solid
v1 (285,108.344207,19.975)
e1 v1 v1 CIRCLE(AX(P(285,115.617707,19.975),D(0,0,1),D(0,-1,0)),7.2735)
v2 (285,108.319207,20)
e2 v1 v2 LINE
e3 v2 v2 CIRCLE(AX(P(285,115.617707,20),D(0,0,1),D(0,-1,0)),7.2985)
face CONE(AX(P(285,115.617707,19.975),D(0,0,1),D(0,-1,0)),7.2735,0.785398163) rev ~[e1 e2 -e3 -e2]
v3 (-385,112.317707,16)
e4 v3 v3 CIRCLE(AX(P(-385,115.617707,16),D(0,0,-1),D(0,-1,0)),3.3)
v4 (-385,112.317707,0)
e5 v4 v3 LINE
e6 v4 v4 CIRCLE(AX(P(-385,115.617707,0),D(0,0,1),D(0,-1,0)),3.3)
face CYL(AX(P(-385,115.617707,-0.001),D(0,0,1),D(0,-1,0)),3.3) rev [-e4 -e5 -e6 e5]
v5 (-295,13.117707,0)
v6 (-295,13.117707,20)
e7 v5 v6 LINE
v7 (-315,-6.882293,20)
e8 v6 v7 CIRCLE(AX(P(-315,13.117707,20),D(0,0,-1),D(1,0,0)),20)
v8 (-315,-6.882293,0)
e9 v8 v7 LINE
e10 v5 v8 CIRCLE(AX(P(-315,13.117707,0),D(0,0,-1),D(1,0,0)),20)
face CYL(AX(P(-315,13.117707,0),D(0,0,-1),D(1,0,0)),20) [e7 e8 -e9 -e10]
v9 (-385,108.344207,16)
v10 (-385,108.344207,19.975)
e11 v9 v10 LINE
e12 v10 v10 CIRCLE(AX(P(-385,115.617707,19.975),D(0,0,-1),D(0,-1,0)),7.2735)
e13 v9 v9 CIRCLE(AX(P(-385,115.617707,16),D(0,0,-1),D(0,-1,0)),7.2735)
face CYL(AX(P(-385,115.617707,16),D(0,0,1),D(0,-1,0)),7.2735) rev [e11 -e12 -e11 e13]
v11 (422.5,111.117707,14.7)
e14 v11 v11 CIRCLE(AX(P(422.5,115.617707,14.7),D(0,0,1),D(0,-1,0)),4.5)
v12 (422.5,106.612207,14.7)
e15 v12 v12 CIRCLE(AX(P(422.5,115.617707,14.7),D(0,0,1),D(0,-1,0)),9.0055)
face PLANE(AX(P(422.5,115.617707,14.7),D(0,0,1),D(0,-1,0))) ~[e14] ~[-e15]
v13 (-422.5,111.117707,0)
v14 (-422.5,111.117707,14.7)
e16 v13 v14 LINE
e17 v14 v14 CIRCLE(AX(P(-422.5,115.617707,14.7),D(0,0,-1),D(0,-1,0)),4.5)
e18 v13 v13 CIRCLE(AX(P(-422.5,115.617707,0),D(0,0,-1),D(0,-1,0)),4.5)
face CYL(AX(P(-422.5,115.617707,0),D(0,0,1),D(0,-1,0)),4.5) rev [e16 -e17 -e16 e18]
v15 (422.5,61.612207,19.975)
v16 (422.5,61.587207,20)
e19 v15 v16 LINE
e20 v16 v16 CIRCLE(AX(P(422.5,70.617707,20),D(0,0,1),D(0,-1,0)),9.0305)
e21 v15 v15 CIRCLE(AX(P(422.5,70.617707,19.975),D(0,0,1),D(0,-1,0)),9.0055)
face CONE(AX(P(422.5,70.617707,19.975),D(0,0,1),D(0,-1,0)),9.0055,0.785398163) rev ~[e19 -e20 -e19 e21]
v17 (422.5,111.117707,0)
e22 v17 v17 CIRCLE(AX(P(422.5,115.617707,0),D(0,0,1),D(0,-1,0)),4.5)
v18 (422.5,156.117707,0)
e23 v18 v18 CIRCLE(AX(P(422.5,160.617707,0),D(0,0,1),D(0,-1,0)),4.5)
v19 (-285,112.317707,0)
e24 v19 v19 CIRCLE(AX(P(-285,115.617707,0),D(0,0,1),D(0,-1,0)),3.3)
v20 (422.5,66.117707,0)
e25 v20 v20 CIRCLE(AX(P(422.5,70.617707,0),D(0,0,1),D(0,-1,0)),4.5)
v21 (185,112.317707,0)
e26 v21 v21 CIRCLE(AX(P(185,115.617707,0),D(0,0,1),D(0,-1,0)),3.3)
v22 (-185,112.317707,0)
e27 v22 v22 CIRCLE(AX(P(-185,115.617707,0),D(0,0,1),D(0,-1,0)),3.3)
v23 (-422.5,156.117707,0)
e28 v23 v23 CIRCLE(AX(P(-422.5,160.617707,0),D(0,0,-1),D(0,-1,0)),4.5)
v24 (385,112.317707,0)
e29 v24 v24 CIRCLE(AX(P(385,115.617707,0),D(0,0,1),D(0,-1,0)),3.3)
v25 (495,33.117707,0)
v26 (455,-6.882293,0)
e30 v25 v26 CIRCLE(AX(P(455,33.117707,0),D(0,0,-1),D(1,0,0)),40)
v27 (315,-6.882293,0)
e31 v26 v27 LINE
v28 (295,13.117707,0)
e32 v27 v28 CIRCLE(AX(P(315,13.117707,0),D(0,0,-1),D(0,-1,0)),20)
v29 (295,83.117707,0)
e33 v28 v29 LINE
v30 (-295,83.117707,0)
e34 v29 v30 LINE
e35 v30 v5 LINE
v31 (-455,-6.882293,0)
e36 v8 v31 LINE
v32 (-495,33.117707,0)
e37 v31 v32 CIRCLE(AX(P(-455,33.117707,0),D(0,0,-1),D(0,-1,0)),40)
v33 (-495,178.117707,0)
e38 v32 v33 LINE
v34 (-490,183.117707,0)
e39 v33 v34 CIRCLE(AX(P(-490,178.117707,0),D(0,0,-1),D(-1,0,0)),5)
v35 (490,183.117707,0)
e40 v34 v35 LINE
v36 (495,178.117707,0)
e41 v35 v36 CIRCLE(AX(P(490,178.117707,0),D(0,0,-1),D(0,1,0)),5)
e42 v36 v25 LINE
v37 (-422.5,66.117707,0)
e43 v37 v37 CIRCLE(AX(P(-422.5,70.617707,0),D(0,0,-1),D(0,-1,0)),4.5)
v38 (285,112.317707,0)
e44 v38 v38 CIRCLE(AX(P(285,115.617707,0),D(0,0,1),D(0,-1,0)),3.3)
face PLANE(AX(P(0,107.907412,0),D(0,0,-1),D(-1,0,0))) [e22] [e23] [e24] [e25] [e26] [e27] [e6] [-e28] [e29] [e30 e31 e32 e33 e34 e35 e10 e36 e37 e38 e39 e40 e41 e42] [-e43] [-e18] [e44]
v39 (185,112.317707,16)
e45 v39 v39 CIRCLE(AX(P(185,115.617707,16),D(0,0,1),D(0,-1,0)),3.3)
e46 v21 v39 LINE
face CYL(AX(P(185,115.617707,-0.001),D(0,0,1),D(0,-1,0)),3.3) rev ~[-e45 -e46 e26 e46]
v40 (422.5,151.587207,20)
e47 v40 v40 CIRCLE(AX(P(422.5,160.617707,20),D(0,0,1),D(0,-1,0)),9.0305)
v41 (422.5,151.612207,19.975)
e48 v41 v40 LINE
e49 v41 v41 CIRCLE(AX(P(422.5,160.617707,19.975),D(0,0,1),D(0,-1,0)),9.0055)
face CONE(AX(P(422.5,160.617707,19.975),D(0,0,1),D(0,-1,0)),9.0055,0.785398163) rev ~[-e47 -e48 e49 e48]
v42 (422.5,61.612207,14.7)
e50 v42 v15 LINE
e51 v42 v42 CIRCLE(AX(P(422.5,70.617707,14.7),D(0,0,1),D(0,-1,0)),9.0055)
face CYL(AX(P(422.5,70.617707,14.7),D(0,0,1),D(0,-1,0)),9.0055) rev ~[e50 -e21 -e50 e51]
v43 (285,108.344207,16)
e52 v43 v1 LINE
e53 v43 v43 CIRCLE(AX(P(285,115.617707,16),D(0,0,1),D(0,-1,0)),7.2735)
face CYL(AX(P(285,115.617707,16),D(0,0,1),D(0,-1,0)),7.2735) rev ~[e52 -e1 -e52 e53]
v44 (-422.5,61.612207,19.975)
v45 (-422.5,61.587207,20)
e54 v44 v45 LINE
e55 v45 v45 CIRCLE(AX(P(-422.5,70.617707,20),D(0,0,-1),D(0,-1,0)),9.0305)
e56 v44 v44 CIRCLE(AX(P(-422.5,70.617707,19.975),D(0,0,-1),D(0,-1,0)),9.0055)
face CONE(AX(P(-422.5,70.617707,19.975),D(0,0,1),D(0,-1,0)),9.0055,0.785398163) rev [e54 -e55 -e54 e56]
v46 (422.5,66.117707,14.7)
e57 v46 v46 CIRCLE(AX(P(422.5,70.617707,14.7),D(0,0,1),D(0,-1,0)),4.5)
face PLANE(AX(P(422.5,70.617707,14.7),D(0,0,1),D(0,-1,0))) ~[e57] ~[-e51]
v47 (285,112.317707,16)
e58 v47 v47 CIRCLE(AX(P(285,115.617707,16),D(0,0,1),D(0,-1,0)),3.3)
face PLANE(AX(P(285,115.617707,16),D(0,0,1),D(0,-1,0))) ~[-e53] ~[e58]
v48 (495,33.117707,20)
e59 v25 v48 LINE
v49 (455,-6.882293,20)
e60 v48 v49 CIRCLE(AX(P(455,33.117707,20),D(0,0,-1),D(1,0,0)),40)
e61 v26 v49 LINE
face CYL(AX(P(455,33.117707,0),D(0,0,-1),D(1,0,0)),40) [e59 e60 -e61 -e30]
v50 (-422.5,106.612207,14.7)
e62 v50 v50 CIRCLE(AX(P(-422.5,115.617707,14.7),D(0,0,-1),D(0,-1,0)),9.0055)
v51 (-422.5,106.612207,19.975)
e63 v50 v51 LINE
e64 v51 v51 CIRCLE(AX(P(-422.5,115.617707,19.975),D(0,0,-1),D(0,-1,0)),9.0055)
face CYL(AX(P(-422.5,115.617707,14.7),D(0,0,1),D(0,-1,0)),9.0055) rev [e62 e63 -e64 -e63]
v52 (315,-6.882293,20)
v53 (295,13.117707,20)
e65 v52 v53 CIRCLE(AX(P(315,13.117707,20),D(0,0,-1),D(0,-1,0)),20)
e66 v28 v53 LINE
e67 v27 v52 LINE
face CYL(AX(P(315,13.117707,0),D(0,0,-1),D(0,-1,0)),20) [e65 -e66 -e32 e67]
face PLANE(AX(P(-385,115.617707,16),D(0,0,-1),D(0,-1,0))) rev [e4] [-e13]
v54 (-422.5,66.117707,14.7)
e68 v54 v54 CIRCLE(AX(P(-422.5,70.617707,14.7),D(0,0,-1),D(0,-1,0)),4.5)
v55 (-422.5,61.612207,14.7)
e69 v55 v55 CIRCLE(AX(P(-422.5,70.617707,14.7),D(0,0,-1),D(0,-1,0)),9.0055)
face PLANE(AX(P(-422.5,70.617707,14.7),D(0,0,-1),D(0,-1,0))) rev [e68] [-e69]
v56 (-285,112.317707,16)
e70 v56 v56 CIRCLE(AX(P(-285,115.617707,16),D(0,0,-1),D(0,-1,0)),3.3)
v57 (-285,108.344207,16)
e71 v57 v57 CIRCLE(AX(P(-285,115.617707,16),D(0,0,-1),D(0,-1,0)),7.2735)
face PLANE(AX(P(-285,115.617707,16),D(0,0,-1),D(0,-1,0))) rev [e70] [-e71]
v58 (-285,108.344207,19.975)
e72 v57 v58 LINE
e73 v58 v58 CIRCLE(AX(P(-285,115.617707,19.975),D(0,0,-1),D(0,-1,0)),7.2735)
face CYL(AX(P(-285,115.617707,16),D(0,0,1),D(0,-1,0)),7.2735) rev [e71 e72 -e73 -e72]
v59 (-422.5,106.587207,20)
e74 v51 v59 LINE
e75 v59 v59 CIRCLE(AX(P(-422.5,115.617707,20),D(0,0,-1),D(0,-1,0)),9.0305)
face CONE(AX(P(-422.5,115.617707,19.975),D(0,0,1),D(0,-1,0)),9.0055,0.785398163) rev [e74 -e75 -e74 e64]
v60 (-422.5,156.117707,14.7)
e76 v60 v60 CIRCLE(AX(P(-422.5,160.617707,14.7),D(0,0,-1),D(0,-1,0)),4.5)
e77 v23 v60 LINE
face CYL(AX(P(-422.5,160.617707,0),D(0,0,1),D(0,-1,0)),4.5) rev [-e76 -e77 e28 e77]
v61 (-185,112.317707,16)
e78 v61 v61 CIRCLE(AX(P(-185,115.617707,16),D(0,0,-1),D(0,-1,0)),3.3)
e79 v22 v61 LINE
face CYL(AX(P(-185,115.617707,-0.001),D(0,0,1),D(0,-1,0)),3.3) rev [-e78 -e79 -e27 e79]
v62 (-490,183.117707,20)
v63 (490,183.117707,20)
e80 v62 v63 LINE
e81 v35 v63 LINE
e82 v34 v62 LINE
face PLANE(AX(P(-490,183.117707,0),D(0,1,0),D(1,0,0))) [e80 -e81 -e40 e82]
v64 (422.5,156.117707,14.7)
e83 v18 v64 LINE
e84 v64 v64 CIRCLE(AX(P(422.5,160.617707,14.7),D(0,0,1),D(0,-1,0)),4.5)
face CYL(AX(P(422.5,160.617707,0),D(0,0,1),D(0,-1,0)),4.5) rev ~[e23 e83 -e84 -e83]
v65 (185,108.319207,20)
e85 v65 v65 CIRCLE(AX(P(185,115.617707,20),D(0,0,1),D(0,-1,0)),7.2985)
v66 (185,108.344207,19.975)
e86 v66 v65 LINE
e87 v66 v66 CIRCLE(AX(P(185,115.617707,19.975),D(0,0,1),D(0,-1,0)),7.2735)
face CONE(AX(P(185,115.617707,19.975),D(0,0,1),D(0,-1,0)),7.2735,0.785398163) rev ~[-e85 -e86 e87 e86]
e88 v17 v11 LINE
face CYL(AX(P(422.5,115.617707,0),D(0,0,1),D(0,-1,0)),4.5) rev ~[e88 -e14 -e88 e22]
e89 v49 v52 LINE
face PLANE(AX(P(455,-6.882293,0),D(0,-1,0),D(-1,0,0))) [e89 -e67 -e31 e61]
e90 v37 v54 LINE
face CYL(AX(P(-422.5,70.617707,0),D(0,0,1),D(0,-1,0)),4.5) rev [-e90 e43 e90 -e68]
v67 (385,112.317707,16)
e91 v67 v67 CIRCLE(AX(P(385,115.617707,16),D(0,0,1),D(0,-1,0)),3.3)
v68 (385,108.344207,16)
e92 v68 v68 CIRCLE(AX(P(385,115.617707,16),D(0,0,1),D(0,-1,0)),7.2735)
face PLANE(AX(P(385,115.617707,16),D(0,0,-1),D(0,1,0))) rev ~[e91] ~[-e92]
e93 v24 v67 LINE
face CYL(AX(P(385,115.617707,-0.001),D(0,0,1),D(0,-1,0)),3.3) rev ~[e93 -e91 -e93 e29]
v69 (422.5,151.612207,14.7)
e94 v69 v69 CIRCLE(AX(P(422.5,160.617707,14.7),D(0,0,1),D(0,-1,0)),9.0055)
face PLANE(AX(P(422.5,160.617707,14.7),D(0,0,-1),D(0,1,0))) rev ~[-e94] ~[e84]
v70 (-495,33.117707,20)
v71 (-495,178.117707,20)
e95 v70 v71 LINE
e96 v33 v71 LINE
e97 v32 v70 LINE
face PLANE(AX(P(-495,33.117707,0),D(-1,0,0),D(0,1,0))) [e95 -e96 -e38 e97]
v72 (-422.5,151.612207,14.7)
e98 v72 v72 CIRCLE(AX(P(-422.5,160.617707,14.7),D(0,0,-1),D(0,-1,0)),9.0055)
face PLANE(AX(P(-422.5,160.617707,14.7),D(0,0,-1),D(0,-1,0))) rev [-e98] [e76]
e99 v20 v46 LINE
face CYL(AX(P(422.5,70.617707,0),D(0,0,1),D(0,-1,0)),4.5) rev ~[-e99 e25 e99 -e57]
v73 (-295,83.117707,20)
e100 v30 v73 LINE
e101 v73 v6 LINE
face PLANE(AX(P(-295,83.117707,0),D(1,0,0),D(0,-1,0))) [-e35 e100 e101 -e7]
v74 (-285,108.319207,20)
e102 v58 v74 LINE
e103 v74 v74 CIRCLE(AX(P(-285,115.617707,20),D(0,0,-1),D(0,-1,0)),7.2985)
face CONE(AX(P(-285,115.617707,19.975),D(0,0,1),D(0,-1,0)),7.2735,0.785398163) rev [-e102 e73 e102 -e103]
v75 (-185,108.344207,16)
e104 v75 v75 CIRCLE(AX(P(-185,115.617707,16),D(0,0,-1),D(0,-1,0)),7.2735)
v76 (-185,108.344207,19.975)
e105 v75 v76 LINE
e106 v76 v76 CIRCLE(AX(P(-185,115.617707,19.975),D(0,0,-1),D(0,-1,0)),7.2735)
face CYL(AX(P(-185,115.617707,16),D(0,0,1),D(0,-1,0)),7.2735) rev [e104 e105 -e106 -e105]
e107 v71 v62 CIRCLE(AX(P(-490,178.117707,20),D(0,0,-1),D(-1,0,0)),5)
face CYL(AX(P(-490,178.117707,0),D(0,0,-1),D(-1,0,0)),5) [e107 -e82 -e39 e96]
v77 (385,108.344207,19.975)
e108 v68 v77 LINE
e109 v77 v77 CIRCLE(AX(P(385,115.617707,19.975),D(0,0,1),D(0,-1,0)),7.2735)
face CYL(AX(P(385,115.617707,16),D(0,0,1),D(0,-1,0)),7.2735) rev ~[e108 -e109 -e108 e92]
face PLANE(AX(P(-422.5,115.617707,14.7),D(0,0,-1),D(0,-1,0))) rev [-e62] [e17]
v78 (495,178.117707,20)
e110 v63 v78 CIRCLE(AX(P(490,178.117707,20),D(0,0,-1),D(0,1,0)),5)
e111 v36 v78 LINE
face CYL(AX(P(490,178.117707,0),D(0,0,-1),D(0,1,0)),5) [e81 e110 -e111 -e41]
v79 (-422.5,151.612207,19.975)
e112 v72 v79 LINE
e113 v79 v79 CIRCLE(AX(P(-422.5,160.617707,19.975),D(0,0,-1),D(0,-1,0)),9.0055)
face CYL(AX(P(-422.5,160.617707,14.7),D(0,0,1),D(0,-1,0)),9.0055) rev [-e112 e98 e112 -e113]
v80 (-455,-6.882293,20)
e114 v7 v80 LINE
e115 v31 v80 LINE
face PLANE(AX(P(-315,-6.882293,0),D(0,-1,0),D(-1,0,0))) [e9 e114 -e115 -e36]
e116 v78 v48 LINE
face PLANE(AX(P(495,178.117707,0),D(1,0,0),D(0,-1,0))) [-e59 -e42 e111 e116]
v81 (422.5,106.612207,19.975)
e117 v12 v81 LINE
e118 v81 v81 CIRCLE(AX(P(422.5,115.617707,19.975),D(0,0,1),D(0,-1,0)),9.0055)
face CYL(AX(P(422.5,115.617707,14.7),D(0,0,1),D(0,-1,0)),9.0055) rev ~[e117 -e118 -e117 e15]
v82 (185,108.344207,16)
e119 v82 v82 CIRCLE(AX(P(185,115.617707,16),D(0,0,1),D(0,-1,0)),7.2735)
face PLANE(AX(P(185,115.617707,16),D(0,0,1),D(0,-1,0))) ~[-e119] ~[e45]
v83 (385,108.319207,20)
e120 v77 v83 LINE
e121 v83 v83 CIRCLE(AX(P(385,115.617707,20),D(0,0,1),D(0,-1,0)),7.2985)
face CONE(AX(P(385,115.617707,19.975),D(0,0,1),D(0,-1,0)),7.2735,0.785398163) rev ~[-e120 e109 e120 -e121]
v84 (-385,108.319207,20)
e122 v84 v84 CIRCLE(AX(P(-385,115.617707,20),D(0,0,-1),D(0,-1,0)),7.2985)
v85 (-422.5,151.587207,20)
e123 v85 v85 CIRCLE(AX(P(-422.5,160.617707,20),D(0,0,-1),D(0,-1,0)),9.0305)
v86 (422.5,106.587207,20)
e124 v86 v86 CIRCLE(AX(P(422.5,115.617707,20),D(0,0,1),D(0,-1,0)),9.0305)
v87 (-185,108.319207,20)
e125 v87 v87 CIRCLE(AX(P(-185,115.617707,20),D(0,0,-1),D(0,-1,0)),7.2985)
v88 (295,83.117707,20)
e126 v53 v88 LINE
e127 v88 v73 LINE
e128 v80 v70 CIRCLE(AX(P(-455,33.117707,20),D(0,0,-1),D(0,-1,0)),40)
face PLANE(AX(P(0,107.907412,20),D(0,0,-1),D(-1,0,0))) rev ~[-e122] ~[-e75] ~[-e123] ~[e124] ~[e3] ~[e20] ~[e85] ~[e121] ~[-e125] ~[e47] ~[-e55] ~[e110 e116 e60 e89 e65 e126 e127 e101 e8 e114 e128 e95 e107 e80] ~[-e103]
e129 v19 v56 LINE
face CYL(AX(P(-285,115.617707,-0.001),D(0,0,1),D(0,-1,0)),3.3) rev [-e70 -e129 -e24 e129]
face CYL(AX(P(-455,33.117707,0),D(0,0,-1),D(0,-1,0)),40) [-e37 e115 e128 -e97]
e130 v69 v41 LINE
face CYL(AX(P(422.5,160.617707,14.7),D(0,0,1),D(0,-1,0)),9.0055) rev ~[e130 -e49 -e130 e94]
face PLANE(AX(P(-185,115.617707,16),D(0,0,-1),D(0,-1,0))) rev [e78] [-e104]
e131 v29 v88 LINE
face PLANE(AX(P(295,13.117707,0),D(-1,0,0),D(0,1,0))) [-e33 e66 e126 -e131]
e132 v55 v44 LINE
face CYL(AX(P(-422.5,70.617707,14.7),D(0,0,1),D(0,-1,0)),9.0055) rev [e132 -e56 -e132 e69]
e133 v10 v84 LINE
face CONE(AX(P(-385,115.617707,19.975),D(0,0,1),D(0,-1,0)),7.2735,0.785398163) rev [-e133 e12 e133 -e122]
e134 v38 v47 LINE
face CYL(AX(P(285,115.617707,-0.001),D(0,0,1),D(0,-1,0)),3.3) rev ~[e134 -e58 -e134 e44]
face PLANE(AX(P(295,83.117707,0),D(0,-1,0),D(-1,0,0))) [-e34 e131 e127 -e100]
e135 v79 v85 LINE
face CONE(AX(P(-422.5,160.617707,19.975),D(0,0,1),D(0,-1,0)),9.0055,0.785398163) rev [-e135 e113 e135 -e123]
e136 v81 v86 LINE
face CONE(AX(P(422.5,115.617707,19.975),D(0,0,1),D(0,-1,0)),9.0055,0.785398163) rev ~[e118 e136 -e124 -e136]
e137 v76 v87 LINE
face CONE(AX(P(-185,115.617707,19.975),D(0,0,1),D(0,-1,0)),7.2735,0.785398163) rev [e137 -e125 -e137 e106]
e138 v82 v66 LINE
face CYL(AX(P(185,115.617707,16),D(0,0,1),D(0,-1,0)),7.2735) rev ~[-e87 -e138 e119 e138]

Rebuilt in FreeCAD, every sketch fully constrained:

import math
import FreeCAD as App
import Part
import Sketcher
Q = App.Units.Quantity

doc = App.newDocument("Part")
body = doc.addObject("PartDesign::Body", "Body")

sketch1 = body.newObject("Sketcher::SketchObject", "Sketch")
sketch1.AttachmentSupport = (doc.getObject("XY_Plane"), [""])
sketch1.MapMode = "FlatFace"
sketch1.addGeometry(Part.LineSegment(App.Vector(-495, 178.117707, 0), App.Vector(-495, 33.117707, 0)), False)
sketch1.addGeometry(Part.ArcOfCircle(Part.Circle(App.Vector(-455, 33.117707, 0), App.Vector(0, 0, 1), 40), math.radians(-180), math.radians(-90)), False)
sketch1.addGeometry(Part.LineSegment(App.Vector(-455, -6.882293, 0), App.Vector(-315, -6.882293, 0)), False)
sketch1.addGeometry(Part.ArcOfCircle(Part.Circle(App.Vector(-315, 13.117707, 0), App.Vector(0, 0, 1), 20), math.radians(-90), math.radians(0)), False)
sketch1.addGeometry(Part.LineSegment(App.Vector(-295, 13.117707, 0), App.Vector(-295, 83.117707, 0)), False)
sketch1.addGeometry(Part.LineSegment(App.Vector(-295, 83.117707, 0), App.Vector(295, 83.117707, 0)), False)
sketch1.addGeometry(Part.LineSegment(App.Vector(295, 83.117707, 0), App.Vector(295, 13.117707, 0)), False)
sketch1.addGeometry(Part.ArcOfCircle(Part.Circle(App.Vector(315, 13.117707, 0), App.Vector(0, 0, 1), 20), math.radians(180), math.radians(270)), False)
sketch1.addGeometry(Part.LineSegment(App.Vector(315, -6.882293, 0), App.Vector(455, -6.882293, 0)), False)
sketch1.addGeometry(Part.ArcOfCircle(Part.Circle(App.Vector(455, 33.117707, 0), App.Vector(0, 0, 1), 40), math.radians(-90), math.radians(0)), False)
sketch1.addGeometry(Part.LineSegment(App.Vector(495, 33.117707, 0), App.Vector(495, 178.117707, 0)), False)
sketch1.addGeometry(Part.ArcOfCircle(Part.Circle(App.Vector(490, 178.117707, 0), App.Vector(0, 0, 1), 5), math.radians(0), math.radians(90)), False)
sketch1.addGeometry(Part.LineSegment(App.Vector(490, 183.117707, 0), App.Vector(-490, 183.117707, 0)), False)
sketch1.addGeometry(Part.ArcOfCircle(Part.Circle(App.Vector(-490, 178.117707, 0), App.Vector(0, 0, 1), 5), math.radians(90), math.radians(180)), False)
sketch1.addConstraint(Sketcher.Constraint("Tangent", 0, 2, 1, 1))
sketch1.addConstraint(Sketcher.Constraint("Tangent", 1, 2, 2, 1))
sketch1.addConstraint(Sketcher.Constraint("Tangent", 2, 2, 3, 1))
sketch1.addConstraint(Sketcher.Constraint("Tangent", 3, 2, 4, 1))
sketch1.addConstraint(Sketcher.Constraint("Coincident", 4, 2, 5, 1))
sketch1.addConstraint(Sketcher.Constraint("Coincident", 5, 2, 6, 1))
sketch1.addConstraint(Sketcher.Constraint("Tangent", 6, 2, 7, 1))
sketch1.addConstraint(Sketcher.Constraint("Tangent", 7, 2, 8, 1))
sketch1.addConstraint(Sketcher.Constraint("Tangent", 8, 2, 9, 1))
sketch1.addConstraint(Sketcher.Constraint("Tangent", 9, 2, 10, 1))
sketch1.addConstraint(Sketcher.Constraint("Tangent", 10, 2, 11, 1))
sketch1.addConstraint(Sketcher.Constraint("Tangent", 11, 2, 12, 1))
sketch1.addConstraint(Sketcher.Constraint("Tangent", 12, 2, 13, 1))
sketch1.addConstraint(Sketcher.Constraint("Tangent", 13, 2, 0, 1))
sketch1.addConstraint(Sketcher.Constraint("Vertical", 0))
sketch1.addConstraint(Sketcher.Constraint("Horizontal", 2))
sketch1.addConstraint(Sketcher.Constraint("Vertical", 4))
sketch1.addConstraint(Sketcher.Constraint("Horizontal", 5))
sketch1.addConstraint(Sketcher.Constraint("Vertical", 6))
sketch1.addConstraint(Sketcher.Constraint("Horizontal", 8))
sketch1.addConstraint(Sketcher.Constraint("Vertical", 10))
sketch1.addConstraint(Sketcher.Constraint("Horizontal", 12))
sketch1.addConstraint(Sketcher.Constraint("Equal", 3, 7))
sketch1.addConstraint(Sketcher.Constraint("Equal", 1, 9))
sketch1.addConstraint(Sketcher.Constraint("Equal", 11, 13))
sketch1.addConstraint(Sketcher.Constraint("Symmetric", 3, 3, 7, 3, -2))
sketch1.addConstraint(Sketcher.Constraint("Equal", 2, 8))
sketch1.addConstraint(Sketcher.Constraint("Radius", 1, Q("40 mm")))
sketch1.addConstraint(Sketcher.Constraint("Radius", 3, Q("20 mm")))
sketch1.addConstraint(Sketcher.Constraint("Radius", 11, Q("5 mm")))
sketch1.addConstraint(Sketcher.Constraint("DistanceX", 2, 1, 2, 2, Q("140 mm")))
sketch1.addConstraint(Sketcher.Constraint("DistanceX", 5, 1, 5, 2, Q("590 mm")))
sketch1.addConstraint(Sketcher.Constraint("DistanceY", 0, 2, 0, 1, Q("145 mm")))
sketch1.addConstraint(Sketcher.Constraint("DistanceY", 4, 1, 4, 2, Q("70 mm")))
sketch1.addConstraint(Sketcher.Constraint("DistanceY", -1, 1, 1, 3, Q("33.117707 mm")))
pad1 = body.newObject("PartDesign::Pad", "Pad")
pad1.Profile = sketch1
pad1.Length = 20

sketch2 = body.newObject("Sketcher::SketchObject", "Sketch001")
sketch2.AttachmentSupport = (doc.getObject("YZ_Plane"), [""])
sketch2.MapMode = "FlatFace"
sketch2.AttachmentOffset = App.Placement(App.Vector(0, 0, -422.5), App.Rotation())
sketch2.addGeometry(Part.LineSegment(App.Vector(160.617707, 0, 0), App.Vector(160.617707, 20, 0)), False)
sketch2.addGeometry(Part.LineSegment(App.Vector(160.617707, 20, 0), App.Vector(151.587207, 20, 0)), False)
sketch2.addGeometry(Part.LineSegment(App.Vector(151.587207, 20, 0), App.Vector(151.612207, 19.975, 0)), False)
sketch2.addGeometry(Part.LineSegment(App.Vector(151.612207, 19.975, 0), App.Vector(151.612207, 14.7, 0)), False)
sketch2.addGeometry(Part.LineSegment(App.Vector(151.612207, 14.7, 0), App.Vector(156.117707, 14.7, 0)), False)
sketch2.addGeometry(Part.LineSegment(App.Vector(156.117707, 14.7, 0), App.Vector(156.117707, 0, 0)), False)
sketch2.addGeometry(Part.LineSegment(App.Vector(156.117707, 0, 0), App.Vector(160.617707, 0, 0)), False)
sketch2.addGeometry(Part.LineSegment(App.Vector(160.617707, 20, 0), App.Vector(160.617707, 0, 0)), True)
sketch2.addConstraint(Sketcher.Constraint("Coincident", 0, 2, 1, 1))
sketch2.addConstraint(Sketcher.Constraint("Coincident", 1, 2, 2, 1))
sketch2.addConstraint(Sketcher.Constraint("Coincident", 2, 2, 3, 1))
sketch2.addConstraint(Sketcher.Constraint("Coincident", 3, 2, 4, 1))
sketch2.addConstraint(Sketcher.Constraint("Coincident", 4, 2, 5, 1))
sketch2.addConstraint(Sketcher.Constraint("Coincident", 5, 2, 6, 1))
sketch2.addConstraint(Sketcher.Constraint("Coincident", 6, 2, 0, 1))
sketch2.addConstraint(Sketcher.Constraint("Vertical", 0))
sketch2.addConstraint(Sketcher.Constraint("Horizontal", 1))
sketch2.addConstraint(Sketcher.Constraint("Vertical", 3))
sketch2.addConstraint(Sketcher.Constraint("Horizontal", 4))
sketch2.addConstraint(Sketcher.Constraint("Vertical", 5))
sketch2.addConstraint(Sketcher.Constraint("Horizontal", 6))
sketch2.addConstraint(Sketcher.Constraint("Vertical", 7))
sketch2.addConstraint(Sketcher.Constraint("Coincident", 7, 1, 0, 2))
sketch2.addConstraint(Sketcher.Constraint("PointOnObject", 5, 2, -1))
sketch2.addConstraint(Sketcher.Constraint("PointOnObject", 7, 2, -1))
sketch2.addConstraint(Sketcher.Constraint("DistanceY", 0, 1, 0, 2, Q("20 mm")))
sketch2.addConstraint(Sketcher.Constraint("Angle", 2, Q("-45 deg")))
sketch2.addConstraint(Sketcher.Constraint("DistanceX", 6, 1, 6, 2, Q("4.5 mm")))
sketch2.addConstraint(Sketcher.Constraint("DistanceY", 5, 2, 5, 1, Q("14.7 mm")))
sketch2.addConstraint(Sketcher.Constraint("DistanceY", 3, 2, 3, 1, Q("5.275 mm")))
sketch2.addConstraint(Sketcher.Constraint("DistanceX", 1, 2, 1, 1, Q("9.0305 mm")))
sketch2.addConstraint(Sketcher.Constraint("DistanceX", -1, 1, 0, 2, Q("160.617707 mm")))
groove = body.newObject("PartDesign::Groove", "Groove")
groove.Profile = sketch2
groove.ReferenceAxis = (sketch2, ["Axis0"])
groove.Angle = 360
doc.recompute()

linearpattern = body.newObject("PartDesign::LinearPattern", "LinearPattern")
linearpattern.Originals = [groove]
linearpattern.Direction = (doc.getObject("Y_Axis"), [""])
linearpattern.Mode = "offset"
linearpattern.Offset = 45
linearpattern.Occurrences = 2
linearpattern.Reversed = True
body.Tip = linearpattern
doc.recompute()

datumline = body.newObject("PartDesign::Line", "DatumLine")
datumline.Placement = App.Placement(App.Vector(0, 0, 0), App.Rotation(App.Vector(0, 0, 1), App.Vector(-0.70340233, 0.710791926, 0)))
linearpattern2 = body.newObject("PartDesign::LinearPattern", "LinearPattern001")
linearpattern2.Originals = [groove]
linearpattern2.Direction = (datumline, [""])
linearpattern2.Mode = "offset"
linearpattern2.Offset = 1307.399809
linearpattern2.Occurrences = 2
body.Tip = linearpattern2
doc.recompute()

linearpattern3 = body.newObject("PartDesign::LinearPattern", "LinearPattern002")
linearpattern3.Originals = [groove]
linearpattern3.Direction = (doc.getObject("Y_Axis"), [""])
linearpattern3.Mode = "offset"
linearpattern3.Offset = 90
linearpattern3.Occurrences = 2
linearpattern3.Reversed = True
body.Tip = linearpattern3
doc.recompute()

mirrored = body.newObject("PartDesign::Mirrored", "Mirrored")
mirrored.Originals = [groove]
mirrored.MirrorPlane = (doc.getObject("YZ_Plane"), [""])
body.Tip = mirrored

sketch3 = body.newObject("Sketcher::SketchObject", "Sketch002")
sketch3.AttachmentSupport = (doc.getObject("YZ_Plane"), [""])
sketch3.MapMode = "FlatFace"
sketch3.AttachmentOffset = App.Placement(App.Vector(0, 0, 422.5), App.Rotation())
sketch3.addGeometry(Part.LineSegment(App.Vector(115.617707, 20, 0), App.Vector(115.617707, 0, 0)), False)
sketch3.addGeometry(Part.LineSegment(App.Vector(115.617707, 0, 0), App.Vector(111.117707, 0, 0)), False)
sketch3.addGeometry(Part.LineSegment(App.Vector(111.117707, 0, 0), App.Vector(111.117707, 14.7, 0)), False)
sketch3.addGeometry(Part.LineSegment(App.Vector(111.117707, 14.7, 0), App.Vector(106.612207, 14.7, 0)), False)
sketch3.addGeometry(Part.LineSegment(App.Vector(106.612207, 14.7, 0), App.Vector(106.612207, 19.975, 0)), False)
sketch3.addGeometry(Part.LineSegment(App.Vector(106.612207, 19.975, 0), App.Vector(106.587207, 20, 0)), False)
sketch3.addGeometry(Part.LineSegment(App.Vector(106.587207, 20, 0), App.Vector(115.617707, 20, 0)), False)
sketch3.addGeometry(Part.LineSegment(App.Vector(115.617707, 0, 0), App.Vector(115.617707, 20, 0)), True)
sketch3.addConstraint(Sketcher.Constraint("Coincident", 0, 2, 1, 1))
sketch3.addConstraint(Sketcher.Constraint("Coincident", 1, 2, 2, 1))
sketch3.addConstraint(Sketcher.Constraint("Coincident", 2, 2, 3, 1))
sketch3.addConstraint(Sketcher.Constraint("Coincident", 3, 2, 4, 1))
sketch3.addConstraint(Sketcher.Constraint("Coincident", 4, 2, 5, 1))
sketch3.addConstraint(Sketcher.Constraint("Coincident", 5, 2, 6, 1))
sketch3.addConstraint(Sketcher.Constraint("Coincident", 6, 2, 0, 1))
sketch3.addConstraint(Sketcher.Constraint("Vertical", 0))
sketch3.addConstraint(Sketcher.Constraint("Horizontal", 1))
sketch3.addConstraint(Sketcher.Constraint("Vertical", 2))
sketch3.addConstraint(Sketcher.Constraint("Horizontal", 3))
sketch3.addConstraint(Sketcher.Constraint("Vertical", 4))
sketch3.addConstraint(Sketcher.Constraint("Horizontal", 6))
sketch3.addConstraint(Sketcher.Constraint("Vertical", 7))
sketch3.addConstraint(Sketcher.Constraint("Coincident", 7, 1, 0, 2))
sketch3.addConstraint(Sketcher.Constraint("PointOnObject", 0, 2, -1))
sketch3.addConstraint(Sketcher.Constraint("Horizontal", 5, 2, 7, 2))
sketch3.addConstraint(Sketcher.Constraint("DistanceY", 0, 2, 0, 1, Q("20 mm")))
sketch3.addConstraint(Sketcher.Constraint("Angle", 5, Q("135 deg")))
sketch3.addConstraint(Sketcher.Constraint("DistanceX", 1, 2, 1, 1, Q("4.5 mm")))
sketch3.addConstraint(Sketcher.Constraint("DistanceY", 2, 1, 2, 2, Q("14.7 mm")))
sketch3.addConstraint(Sketcher.Constraint("DistanceY", 4, 1, 4, 2, Q("5.275 mm")))
sketch3.addConstraint(Sketcher.Constraint("DistanceX", 3, 2, 3, 1, Q("4.5055 mm")))
sketch3.addConstraint(Sketcher.Constraint("DistanceX", -1, 1, 0, 2, Q("115.617707 mm")))
groove2 = body.newObject("PartDesign::Groove", "Groove001")
groove2.Profile = sketch3
groove2.ReferenceAxis = (sketch3, ["Axis0"])
groove2.Angle = 360

sketch4 = body.newObject("Sketcher::SketchObject", "Sketch003")
sketch4.AttachmentSupport = (doc.getObject("YZ_Plane"), [""])
sketch4.MapMode = "FlatFace"
sketch4.AttachmentOffset = App.Placement(App.Vector(0, 0, 1342.128073), App.Rotation())
sketch4.addGeometry(Part.LineSegment(App.Vector(1089.906935, 20, 0), App.Vector(1089.906935, 0, 0)), False)
sketch4.addGeometry(Part.LineSegment(App.Vector(1089.906935, 0, 0), App.Vector(1085.406935, 0, 0)), False)
sketch4.addGeometry(Part.LineSegment(App.Vector(1085.406935, 0, 0), App.Vector(1085.406935, 14.7, 0)), False)
sketch4.addGeometry(Part.LineSegment(App.Vector(1085.406935, 14.7, 0), App.Vector(1080.901435, 14.7, 0)), False)
sketch4.addGeometry(Part.LineSegment(App.Vector(1080.901435, 14.7, 0), App.Vector(1080.901435, 19.975, 0)), False)
sketch4.addGeometry(Part.LineSegment(App.Vector(1080.901435, 19.975, 0), App.Vector(1080.876435, 20, 0)), False)
sketch4.addGeometry(Part.LineSegment(App.Vector(1080.876435, 20, 0), App.Vector(1089.906935, 20, 0)), False)
sketch4.addGeometry(Part.LineSegment(App.Vector(1089.906935, 0, 0), App.Vector(1089.906935, 20, 0)), True)
sketch4.addConstraint(Sketcher.Constraint("Coincident", 0, 2, 1, 1))
sketch4.addConstraint(Sketcher.Constraint("Coincident", 1, 2, 2, 1))
sketch4.addConstraint(Sketcher.Constraint("Coincident", 2, 2, 3, 1))
sketch4.addConstraint(Sketcher.Constraint("Coincident", 3, 2, 4, 1))
sketch4.addConstraint(Sketcher.Constraint("Coincident", 4, 2, 5, 1))
sketch4.addConstraint(Sketcher.Constraint("Coincident", 5, 2, 6, 1))
sketch4.addConstraint(Sketcher.Constraint("Coincident", 6, 2, 0, 1))
sketch4.addConstraint(Sketcher.Constraint("Vertical", 0))
sketch4.addConstraint(Sketcher.Constraint("Horizontal", 1))
sketch4.addConstraint(Sketcher.Constraint("Vertical", 2))
sketch4.addConstraint(Sketcher.Constraint("Horizontal", 3))
sketch4.addConstraint(Sketcher.Constraint("Vertical", 4))
sketch4.addConstraint(Sketcher.Constraint("Horizontal", 6))
sketch4.addConstraint(Sketcher.Constraint("Vertical", 7))
sketch4.addConstraint(Sketcher.Constraint("Coincident", 7, 1, 0, 2))
sketch4.addConstraint(Sketcher.Constraint("PointOnObject", 0, 2, -1))
sketch4.addConstraint(Sketcher.Constraint("Horizontal", 5, 2, 7, 2))
sketch4.addConstraint(Sketcher.Constraint("DistanceY", 0, 2, 0, 1, Q("20 mm")))
sketch4.addConstraint(Sketcher.Constraint("Angle", 5, Q("135 deg")))
sketch4.addConstraint(Sketcher.Constraint("DistanceX", 1, 2, 1, 1, Q("4.5 mm")))
sketch4.addConstraint(Sketcher.Constraint("DistanceY", 2, 1, 2, 2, Q("14.7 mm")))
sketch4.addConstraint(Sketcher.Constraint("DistanceY", 4, 1, 4, 2, Q("5.275 mm")))
sketch4.addConstraint(Sketcher.Constraint("DistanceX", 3, 2, 3, 1, Q("4.5055 mm")))
sketch4.addConstraint(Sketcher.Constraint("DistanceX", -1, 1, 0, 2, Q("1089.906935 mm")))
groove3 = body.newObject("PartDesign::Groove", "Groove002")
groove3.Profile = sketch4
groove3.ReferenceAxis = (sketch4, ["Axis0"])
groove3.Angle = 360

sketch5 = body.newObject("Sketcher::SketchObject", "Sketch004")
sketch5.AttachmentSupport = (doc.getObject("YZ_Plane"), [""])
sketch5.MapMode = "FlatFace"
sketch5.AttachmentOffset = App.Placement(App.Vector(0, 0, 422.5), App.Rotation())
sketch5.addGeometry(Part.LineSegment(App.Vector(70.617707, 20, 0), App.Vector(70.617707, 0, 0)), False)
sketch5.addGeometry(Part.LineSegment(App.Vector(70.617707, 0, 0), App.Vector(66.117707, 0, 0)), False)
sketch5.addGeometry(Part.LineSegment(App.Vector(66.117707, 0, 0), App.Vector(66.117707, 14.7, 0)), False)
sketch5.addGeometry(Part.LineSegment(App.Vector(66.117707, 14.7, 0), App.Vector(61.612207, 14.7, 0)), False)
sketch5.addGeometry(Part.LineSegment(App.Vector(61.612207, 14.7, 0), App.Vector(61.612207, 19.975, 0)), False)
sketch5.addGeometry(Part.LineSegment(App.Vector(61.612207, 19.975, 0), App.Vector(61.587207, 20, 0)), False)
sketch5.addGeometry(Part.LineSegment(App.Vector(61.587207, 20, 0), App.Vector(70.617707, 20, 0)), False)
sketch5.addGeometry(Part.LineSegment(App.Vector(70.617707, 0, 0), App.Vector(70.617707, 20, 0)), True)
sketch5.addConstraint(Sketcher.Constraint("Coincident", 0, 2, 1, 1))
sketch5.addConstraint(Sketcher.Constraint("Coincident", 1, 2, 2, 1))
sketch5.addConstraint(Sketcher.Constraint("Coincident", 2, 2, 3, 1))
sketch5.addConstraint(Sketcher.Constraint("Coincident", 3, 2, 4, 1))
sketch5.addConstraint(Sketcher.Constraint("Coincident", 4, 2, 5, 1))
sketch5.addConstraint(Sketcher.Constraint("Coincident", 5, 2, 6, 1))
sketch5.addConstraint(Sketcher.Constraint("Coincident", 6, 2, 0, 1))
sketch5.addConstraint(Sketcher.Constraint("Vertical", 0))
sketch5.addConstraint(Sketcher.Constraint("Horizontal", 1))
sketch5.addConstraint(Sketcher.Constraint("Vertical", 2))
sketch5.addConstraint(Sketcher.Constraint("Horizontal", 3))
sketch5.addConstraint(Sketcher.Constraint("Vertical", 4))
sketch5.addConstraint(Sketcher.Constraint("Horizontal", 6))
sketch5.addConstraint(Sketcher.Constraint("Vertical", 7))
sketch5.addConstraint(Sketcher.Constraint("Coincident", 7, 1, 0, 2))
sketch5.addConstraint(Sketcher.Constraint("PointOnObject", 0, 2, -1))
sketch5.addConstraint(Sketcher.Constraint("Horizontal", 5, 2, 7, 2))
sketch5.addConstraint(Sketcher.Constraint("DistanceY", 0, 2, 0, 1, Q("20 mm")))
sketch5.addConstraint(Sketcher.Constraint("Angle", 5, Q("135 deg")))
sketch5.addConstraint(Sketcher.Constraint("DistanceX", 1, 2, 1, 1, Q("4.5 mm")))
sketch5.addConstraint(Sketcher.Constraint("DistanceY", 2, 1, 2, 2, Q("14.7 mm")))
sketch5.addConstraint(Sketcher.Constraint("DistanceY", 4, 1, 4, 2, Q("5.275 mm")))
sketch5.addConstraint(Sketcher.Constraint("DistanceX", 3, 2, 3, 1, Q("4.5055 mm")))
sketch5.addConstraint(Sketcher.Constraint("DistanceX", -1, 1, 0, 2, Q("70.617707 mm")))
groove4 = body.newObject("PartDesign::Groove", "Groove003")
groove4.Profile = sketch5
groove4.ReferenceAxis = (sketch5, ["Axis0"])
groove4.Angle = 360

sketch6 = body.newObject("Sketcher::SketchObject", "Sketch005")
sketch6.AttachmentSupport = (doc.getObject("YZ_Plane"), [""])
sketch6.MapMode = "FlatFace"
sketch6.AttachmentOffset = App.Placement(App.Vector(0, 0, -385), App.Rotation())
sketch6.addGeometry(Part.LineSegment(App.Vector(115.617707, -0.001, 0), App.Vector(115.617707, 20, 0)), False)
sketch6.addGeometry(Part.LineSegment(App.Vector(115.617707, 20, 0), App.Vector(108.319207, 20, 0)), False)
sketch6.addGeometry(Part.LineSegment(App.Vector(108.319207, 20, 0), App.Vector(108.344207, 19.975, 0)), False)
sketch6.addGeometry(Part.LineSegment(App.Vector(108.344207, 19.975, 0), App.Vector(108.344207, 16, 0)), False)
sketch6.addGeometry(Part.LineSegment(App.Vector(108.344207, 16, 0), App.Vector(112.317707, 16, 0)), False)
sketch6.addGeometry(Part.LineSegment(App.Vector(112.317707, 16, 0), App.Vector(112.317707, -0.001, 0)), False)
sketch6.addGeometry(Part.LineSegment(App.Vector(112.317707, -0.001, 0), App.Vector(115.617707, -0.001, 0)), False)
sketch6.addGeometry(Part.LineSegment(App.Vector(115.617707, 20, 0), App.Vector(115.617707, -0.001, 0)), True)
sketch6.addConstraint(Sketcher.Constraint("Coincident", 0, 2, 1, 1))
sketch6.addConstraint(Sketcher.Constraint("Coincident", 1, 2, 2, 1))
sketch6.addConstraint(Sketcher.Constraint("Coincident", 2, 2, 3, 1))
sketch6.addConstraint(Sketcher.Constraint("Coincident", 3, 2, 4, 1))
sketch6.addConstraint(Sketcher.Constraint("Coincident", 4, 2, 5, 1))
sketch6.addConstraint(Sketcher.Constraint("Coincident", 5, 2, 6, 1))
sketch6.addConstraint(Sketcher.Constraint("Coincident", 6, 2, 0, 1))
sketch6.addConstraint(Sketcher.Constraint("Vertical", 0))
sketch6.addConstraint(Sketcher.Constraint("Horizontal", 1))
sketch6.addConstraint(Sketcher.Constraint("Vertical", 3))
sketch6.addConstraint(Sketcher.Constraint("Horizontal", 4))
sketch6.addConstraint(Sketcher.Constraint("Vertical", 5))
sketch6.addConstraint(Sketcher.Constraint("Horizontal", 6))
sketch6.addConstraint(Sketcher.Constraint("Vertical", 7))
sketch6.addConstraint(Sketcher.Constraint("Coincident", 7, 1, 0, 2))
sketch6.addConstraint(Sketcher.Constraint("Horizontal", 5, 2, 7, 2))
sketch6.addConstraint(Sketcher.Constraint("Angle", 2, Q("-45 deg")))
sketch6.addConstraint(Sketcher.Constraint("DistanceX", 6, 1, 6, 2, Q("3.3 mm")))
sketch6.addConstraint(Sketcher.Constraint("DistanceY", -1, 1, 0, 2, Q("20 mm")))
sketch6.addConstraint(Sketcher.Constraint("DistanceY", -1, 1, 3, 2, Q("16 mm")))
sketch6.addConstraint(Sketcher.Constraint("DistanceY", 0, 1, 0, 2, Q("20.001 mm")))
sketch6.addConstraint(Sketcher.Constraint("DistanceY", 3, 2, 3, 1, Q("3.975 mm")))
sketch6.addConstraint(Sketcher.Constraint("DistanceX", 1, 2, 1, 1, Q("7.2985 mm")))
sketch6.addConstraint(Sketcher.Constraint("DistanceX", -1, 1, 0, 2, Q("115.617707 mm")))
groove5 = body.newObject("PartDesign::Groove", "Groove004")
groove5.Profile = sketch6
groove5.ReferenceAxis = (sketch6, ["Axis0"])
groove5.Angle = 360
doc.recompute()

linearpattern4 = body.newObject("PartDesign::LinearPattern", "LinearPattern003")
linearpattern4.Originals = [groove5]
linearpattern4.Direction = (doc.getObject("X_Axis"), [""])
linearpattern4.Mode = "offset"
linearpattern4.Offset = 100
linearpattern4.Occurrences = 2
body.Tip = linearpattern4
doc.recompute()

linearpattern5 = body.newObject("PartDesign::LinearPattern", "LinearPattern004")
linearpattern5.Originals = [groove5]
linearpattern5.Direction = (doc.getObject("X_Axis"), [""])
linearpattern5.Mode = "offset"
linearpattern5.Offset = 200
linearpattern5.Occurrences = 2
body.Tip = linearpattern5
doc.recompute()

mirrored2 = body.newObject("PartDesign::Mirrored", "Mirrored001")
mirrored2.Originals = [groove5]
mirrored2.MirrorPlane = (doc.getObject("YZ_Plane"), [""])
body.Tip = mirrored2

sketch7 = body.newObject("Sketcher::SketchObject", "Sketch006")
sketch7.AttachmentSupport = (doc.getObject("YZ_Plane"), [""])
sketch7.MapMode = "FlatFace"
sketch7.AttachmentOffset = App.Placement(App.Vector(0, 0, 285), App.Rotation())
sketch7.addGeometry(Part.LineSegment(App.Vector(115.617707, 20, 0), App.Vector(115.617707, -0.001, 0)), False)
sketch7.addGeometry(Part.LineSegment(App.Vector(115.617707, -0.001, 0), App.Vector(112.317707, -0.001, 0)), False)
sketch7.addGeometry(Part.LineSegment(App.Vector(112.317707, -0.001, 0), App.Vector(112.317707, 16, 0)), False)
sketch7.addGeometry(Part.LineSegment(App.Vector(112.317707, 16, 0), App.Vector(108.344207, 16, 0)), False)
sketch7.addGeometry(Part.LineSegment(App.Vector(108.344207, 16, 0), App.Vector(108.344207, 19.975, 0)), False)
sketch7.addGeometry(Part.LineSegment(App.Vector(108.344207, 19.975, 0), App.Vector(108.319207, 20, 0)), False)
sketch7.addGeometry(Part.LineSegment(App.Vector(108.319207, 20, 0), App.Vector(115.617707, 20, 0)), False)
sketch7.addGeometry(Part.LineSegment(App.Vector(115.617707, -0.001, 0), App.Vector(115.617707, 20, 0)), True)
sketch7.addConstraint(Sketcher.Constraint("Coincident", 0, 2, 1, 1))
sketch7.addConstraint(Sketcher.Constraint("Coincident", 1, 2, 2, 1))
sketch7.addConstraint(Sketcher.Constraint("Coincident", 2, 2, 3, 1))
sketch7.addConstraint(Sketcher.Constraint("Coincident", 3, 2, 4, 1))
sketch7.addConstraint(Sketcher.Constraint("Coincident", 4, 2, 5, 1))
sketch7.addConstraint(Sketcher.Constraint("Coincident", 5, 2, 6, 1))
sketch7.addConstraint(Sketcher.Constraint("Coincident", 6, 2, 0, 1))
sketch7.addConstraint(Sketcher.Constraint("Vertical", 0))
sketch7.addConstraint(Sketcher.Constraint("Horizontal", 1))
sketch7.addConstraint(Sketcher.Constraint("Vertical", 2))
sketch7.addConstraint(Sketcher.Constraint("Horizontal", 3))
sketch7.addConstraint(Sketcher.Constraint("Vertical", 4))
sketch7.addConstraint(Sketcher.Constraint("Horizontal", 6))
sketch7.addConstraint(Sketcher.Constraint("Vertical", 7))
sketch7.addConstraint(Sketcher.Constraint("Coincident", 7, 1, 0, 2))
sketch7.addConstraint(Sketcher.Constraint("Horizontal", 5, 2, 7, 2))
sketch7.addConstraint(Sketcher.Constraint("Angle", 5, Q("135 deg")))
sketch7.addConstraint(Sketcher.Constraint("DistanceX", 1, 2, 1, 1, Q("3.3 mm")))
sketch7.addConstraint(Sketcher.Constraint("DistanceY", -1, 1, 2, 2, Q("16 mm")))
sketch7.addConstraint(Sketcher.Constraint("DistanceY", -1, 1, 5, 2, Q("20 mm")))
sketch7.addConstraint(Sketcher.Constraint("DistanceY", 0, 2, 0, 1, Q("20.001 mm")))
sketch7.addConstraint(Sketcher.Constraint("DistanceY", 4, 1, 4, 2, Q("3.975 mm")))
sketch7.addConstraint(Sketcher.Constraint("DistanceX", 3, 2, 3, 1, Q("3.9735 mm")))
sketch7.addConstraint(Sketcher.Constraint("DistanceX", -1, 1, 0, 2, Q("115.617707 mm")))
groove6 = body.newObject("PartDesign::Groove", "Groove005")
groove6.Profile = sketch7
groove6.ReferenceAxis = (sketch7, ["Axis0"])
groove6.Angle = 360

sketch8 = body.newObject("Sketcher::SketchObject", "Sketch007")
sketch8.AttachmentSupport = (doc.getObject("YZ_Plane"), [""])
sketch8.MapMode = "FlatFace"
sketch8.AttachmentOffset = App.Placement(App.Vector(0, 0, 185), App.Rotation())
sketch8.addGeometry(Part.LineSegment(App.Vector(115.617707, 20, 0), App.Vector(115.617707, -0.001, 0)), False)
sketch8.addGeometry(Part.LineSegment(App.Vector(115.617707, -0.001, 0), App.Vector(112.317707, -0.001, 0)), False)
sketch8.addGeometry(Part.LineSegment(App.Vector(112.317707, -0.001, 0), App.Vector(112.317707, 16, 0)), False)
sketch8.addGeometry(Part.LineSegment(App.Vector(112.317707, 16, 0), App.Vector(108.344207, 16, 0)), False)
sketch8.addGeometry(Part.LineSegment(App.Vector(108.344207, 16, 0), App.Vector(108.344207, 19.975, 0)), False)
sketch8.addGeometry(Part.LineSegment(App.Vector(108.344207, 19.975, 0), App.Vector(108.319207, 20, 0)), False)
sketch8.addGeometry(Part.LineSegment(App.Vector(108.319207, 20, 0), App.Vector(115.617707, 20, 0)), False)
sketch8.addGeometry(Part.LineSegment(App.Vector(115.617707, -0.001, 0), App.Vector(115.617707, 20, 0)), True)
sketch8.addConstraint(Sketcher.Constraint("Coincident", 0, 2, 1, 1))
sketch8.addConstraint(Sketcher.Constraint("Coincident", 1, 2, 2, 1))
sketch8.addConstraint(Sketcher.Constraint("Coincident", 2, 2, 3, 1))
sketch8.addConstraint(Sketcher.Constraint("Coincident", 3, 2, 4, 1))
sketch8.addConstraint(Sketcher.Constraint("Coincident", 4, 2, 5, 1))
sketch8.addConstraint(Sketcher.Constraint("Coincident", 5, 2, 6, 1))
sketch8.addConstraint(Sketcher.Constraint("Coincident", 6, 2, 0, 1))
sketch8.addConstraint(Sketcher.Constraint("Vertical", 0))
sketch8.addConstraint(Sketcher.Constraint("Horizontal", 1))
sketch8.addConstraint(Sketcher.Constraint("Vertical", 2))
sketch8.addConstraint(Sketcher.Constraint("Horizontal", 3))
sketch8.addConstraint(Sketcher.Constraint("Vertical", 4))
sketch8.addConstraint(Sketcher.Constraint("Horizontal", 6))
sketch8.addConstraint(Sketcher.Constraint("Vertical", 7))
sketch8.addConstraint(Sketcher.Constraint("Coincident", 7, 1, 0, 2))
sketch8.addConstraint(Sketcher.Constraint("Horizontal", 5, 2, 7, 2))
sketch8.addConstraint(Sketcher.Constraint("Angle", 5, Q("135 deg")))
sketch8.addConstraint(Sketcher.Constraint("DistanceX", 1, 2, 1, 1, Q("3.3 mm")))
sketch8.addConstraint(Sketcher.Constraint("DistanceY", -1, 1, 2, 2, Q("16 mm")))
sketch8.addConstraint(Sketcher.Constraint("DistanceY", -1, 1, 5, 2, Q("20 mm")))
sketch8.addConstraint(Sketcher.Constraint("DistanceY", 0, 2, 0, 1, Q("20.001 mm")))
sketch8.addConstraint(Sketcher.Constraint("DistanceY", 4, 1, 4, 2, Q("3.975 mm")))
sketch8.addConstraint(Sketcher.Constraint("DistanceX", 3, 2, 3, 1, Q("3.9735 mm")))
sketch8.addConstraint(Sketcher.Constraint("DistanceX", -1, 1, 0, 2, Q("115.617707 mm")))
groove7 = body.newObject("PartDesign::Groove", "Groove006")
groove7.Profile = sketch8
groove7.ReferenceAxis = (sketch8, ["Axis0"])
groove7.Angle = 360

doc.recompute()
